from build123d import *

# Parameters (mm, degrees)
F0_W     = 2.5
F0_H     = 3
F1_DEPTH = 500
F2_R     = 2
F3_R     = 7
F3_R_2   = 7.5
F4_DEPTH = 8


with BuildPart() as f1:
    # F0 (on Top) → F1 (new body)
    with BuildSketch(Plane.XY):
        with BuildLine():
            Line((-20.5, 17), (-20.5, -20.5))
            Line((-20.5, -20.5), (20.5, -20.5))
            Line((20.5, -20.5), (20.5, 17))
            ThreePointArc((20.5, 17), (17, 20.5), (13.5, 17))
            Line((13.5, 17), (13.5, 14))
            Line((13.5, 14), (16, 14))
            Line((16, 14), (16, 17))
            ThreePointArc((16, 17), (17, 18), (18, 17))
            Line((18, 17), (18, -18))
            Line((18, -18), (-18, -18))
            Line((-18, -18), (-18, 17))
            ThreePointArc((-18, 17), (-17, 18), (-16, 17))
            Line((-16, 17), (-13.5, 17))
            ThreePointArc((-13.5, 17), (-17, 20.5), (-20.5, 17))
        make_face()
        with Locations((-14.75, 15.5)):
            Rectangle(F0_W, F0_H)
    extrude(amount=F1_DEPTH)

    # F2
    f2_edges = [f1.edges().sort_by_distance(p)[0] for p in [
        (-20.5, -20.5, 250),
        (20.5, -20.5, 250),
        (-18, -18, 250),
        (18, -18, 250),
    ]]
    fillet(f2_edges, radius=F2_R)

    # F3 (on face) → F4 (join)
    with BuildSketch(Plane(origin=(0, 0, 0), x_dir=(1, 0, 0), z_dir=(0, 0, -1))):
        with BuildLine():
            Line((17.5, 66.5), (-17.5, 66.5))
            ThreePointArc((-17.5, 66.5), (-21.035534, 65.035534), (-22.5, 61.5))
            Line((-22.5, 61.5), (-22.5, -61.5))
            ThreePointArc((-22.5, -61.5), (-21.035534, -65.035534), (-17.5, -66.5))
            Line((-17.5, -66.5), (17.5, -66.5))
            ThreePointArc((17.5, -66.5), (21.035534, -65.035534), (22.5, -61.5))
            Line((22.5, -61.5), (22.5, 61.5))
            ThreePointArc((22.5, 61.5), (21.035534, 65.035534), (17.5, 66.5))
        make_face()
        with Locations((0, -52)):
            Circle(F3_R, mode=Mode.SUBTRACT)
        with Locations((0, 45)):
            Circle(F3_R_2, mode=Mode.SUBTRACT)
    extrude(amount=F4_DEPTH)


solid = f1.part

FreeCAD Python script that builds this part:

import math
import FreeCAD as App
import Part
import Sketcher
from FreeCAD import Vector


def edges_at(feature, points):
    """Names of the edges that pass closest to the given points."""
    edges = feature.Shape.Edges
    near = lambda p: min(range(len(edges)), key=lambda i: edges[i].distToShape(Part.Vertex(*p))[0])
    return sorted({f"Edge{near(p) + 1}" for p in points})

doc = App.newDocument("Part")
body = doc.addObject("PartDesign::Body", "Body")

sketch1 = body.newObject("Sketcher::SketchObject", "Sketch")
sketch1.AttachmentSupport = (doc.getObject("XY_Plane"), [""])
sketch1.MapMode = "FlatFace"
sketch1.addGeometry(Part.LineSegment(Vector(-20.5, 17, 0), Vector(-20.5, -20.5, 0)), False)
sketch1.addGeometry(Part.LineSegment(Vector(-20.5, -20.5, 0), Vector(20.5, -20.5, 0)), False)
sketch1.addGeometry(Part.LineSegment(Vector(20.5, -20.5, 0), Vector(20.5, 17, 0)), False)
sketch1.addGeometry(Part.ArcOfCircle(Part.Circle(Vector(17, 17, 0), Vector(0, 0, 1), 3.5), math.radians(0), math.radians(180)), False)
sketch1.addGeometry(Part.LineSegment(Vector(13.5, 17, 0), Vector(13.5, 14, 0)), False)
sketch1.addGeometry(Part.LineSegment(Vector(13.5, 14, 0), Vector(16, 14, 0)), False)
sketch1.addGeometry(Part.LineSegment(Vector(16, 14, 0), Vector(16, 17, 0)), False)
sketch1.addGeometry(Part.ArcOfCircle(Part.Circle(Vector(17, 17, 0), Vector(0, 0, 1), 1), math.radians(0), math.radians(180)), False)
sketch1.addGeometry(Part.LineSegment(Vector(18, 17, 0), Vector(18, -18, 0)), False)
sketch1.addGeometry(Part.LineSegment(Vector(18, -18, 0), Vector(-18, -18, 0)), False)
sketch1.addGeometry(Part.LineSegment(Vector(-18, -18, 0), Vector(-18, 17, 0)), False)
sketch1.addGeometry(Part.ArcOfCircle(Part.Circle(Vector(-17, 17, 0), Vector(0, 0, 1), 1), math.radians(0), math.radians(180)), False)
sketch1.addGeometry(Part.LineSegment(Vector(-16, 17, 0), Vector(-16, 14, 0)), False)
sketch1.addGeometry(Part.LineSegment(Vector(-16, 14, 0), Vector(-13.5, 14, 0)), False)
sketch1.addGeometry(Part.LineSegment(Vector(-13.5, 14, 0), Vector(-13.5, 17, 0)), False)
sketch1.addGeometry(Part.ArcOfCircle(Part.Circle(Vector(-17, 17, 0), Vector(0, 0, 1), 3.5), math.radians(0), math.radians(180)), False)
sketch1.addConstraint(Sketcher.Constraint("Coincident", 0, 2, 1, 1))
sketch1.addConstraint(Sketcher.Constraint("Coincident", 1, 2, 2, 1))
sketch1.addConstraint(Sketcher.Constraint("Tangent", 2, 2, 3, 1))
sketch1.addConstraint(Sketcher.Constraint("Tangent", 3, 2, 4, 1))
sketch1.addConstraint(Sketcher.Constraint("Coincident", 4, 2, 5, 1))
sketch1.addConstraint(Sketcher.Constraint("Coincident", 5, 2, 6, 1))
sketch1.addConstraint(Sketcher.Constraint("Tangent", 6, 2, 7, 2))
sketch1.addConstraint(Sketcher.Constraint("Tangent", 7, 1, 8, 1))
sketch1.addConstraint(Sketcher.Constraint("Coincident", 8, 2, 9, 1))
sketch1.addConstraint(Sketcher.Constraint("Coincident", 9, 2, 10, 1))
sketch1.addConstraint(Sketcher.Constraint("Tangent", 10, 2, 11, 2))
sketch1.addConstraint(Sketcher.Constraint("Tangent", 11, 1, 12, 1))
sketch1.addConstraint(Sketcher.Constraint("Coincident", 12, 2, 13, 1))
sketch1.addConstraint(Sketcher.Constraint("Coincident", 13, 2, 14, 1))
sketch1.addConstraint(Sketcher.Constraint("Tangent", 14, 2, 15, 1))
sketch1.addConstraint(Sketcher.Constraint("Tangent", 15, 2, 0, 1))
sketch1.addConstraint(Sketcher.Constraint("Vertical", 0))
sketch1.addConstraint(Sketcher.Constraint("Horizontal", 1))
sketch1.addConstraint(Sketcher.Constraint("Vertical", 2))
sketch1.addConstraint(Sketcher.Constraint("Vertical", 4))
sketch1.addConstraint(Sketcher.Constraint("Horizontal", 5))
sketch1.addConstraint(Sketcher.Constraint("Vertical", 6))
sketch1.addConstraint(Sketcher.Constraint("Vertical", 8))
sketch1.addConstraint(Sketcher.Constraint("Horizontal", 9))
sketch1.addConstraint(Sketcher.Constraint("Vertical", 10))
sketch1.addConstraint(Sketcher.Constraint("Vertical", 12))
sketch1.addConstraint(Sketcher.Constraint("Horizontal", 13))
sketch1.addConstraint(Sketcher.Constraint("Vertical", 14))
sketch1.addConstraint(Sketcher.Constraint("Coincident", 7, 3, 3, 3))
sketch1.addConstraint(Sketcher.Constraint("Coincident", 15, 3, 11, 3))
sketch1.addConstraint(Sketcher.Constraint("Equal", 7, 11))
sketch1.addConstraint(Sketcher.Constraint("Equal", 3, 15))
sketch1.addConstraint(Sketcher.Constraint("Symmetric", 3, 3, 11, 3, -2))
sketch1.addConstraint(Sketcher.Constraint("Horizontal", 5, 2, 12, 2))
sketch1.addConstraint(Sketcher.Constraint("Radius", 7, 1.0))
sketch1.addConstraint(Sketcher.Constraint("Radius", 3, 3.5))
sketch1.addConstraint(Sketcher.Constraint("DistanceX", 1, 1, 1, 2, 41.0))
sketch1.addConstraint(Sketcher.Constraint("DistanceY", 4, 2, 4, 1, 3.0))
sketch1.addConstraint(Sketcher.Constraint("DistanceY", 8, 2, 8, 1, 35.0))
sketch1.addConstraint(Sketcher.Constraint("DistanceY", 0, 2, 0, 1, 37.5))
sketch1.addConstraint(Sketcher.Constraint("DistanceY", -1, 1, 3, 3, 17.0))
pad1 = body.newObject("PartDesign::Pad", "Pad")
pad1.Profile = sketch1
pad1.Length = 500
doc.recompute()

fillet = body.newObject("PartDesign::Fillet", "Fillet")
fillet.Base = (pad1, edges_at(pad1, [
    (-20.5, -20.5, 250),
    (20.5, -20.5, 250),
    (-18, -18, 250),
    (18, -18, 250),
]))
fillet.Radius = 2

sketch2 = body.newObject("Sketcher::SketchObject", "Sketch001")
sketch2.AttachmentSupport = (doc.getObject("XY_Plane"), [""])
sketch2.MapMode = "FlatFace"
sketch2.addGeometry(Part.LineSegment(Vector(17.5, -66.5, 0), Vector(-17.5, -66.5, 0)), False)
sketch2.addGeometry(Part.ArcOfCircle(Part.Circle(Vector(-17.5, -61.5, 0), Vector(0, 0, 1), 5), math.radians(179.999996), math.radians(270.000004)), False)
sketch2.addGeometry(Part.LineSegment(Vector(-22.5, -61.5, 0), Vector(-22.5, 61.5, 0)), False)
sketch2.addGeometry(Part.ArcOfCircle(Part.Circle(Vector(-17.5, 61.5, 0), Vector(0, 0, 1), 5), math.radians(89.999996), math.radians(180.000004)), False)
sketch2.addGeometry(Part.LineSegment(Vector(-17.5, 66.5, 0), Vector(17.5, 66.5, 0)), False)
sketch2.addGeometry(Part.ArcOfCircle(Part.Circle(Vector(17.5, 61.5, 0), Vector(0, 0, 1), 5), math.radians(-0.000004), math.radians(90.000004)), False)
sketch2.addGeometry(Part.LineSegment(Vector(22.5, 61.5, 0), Vector(22.5, -61.5, 0)), False)
sketch2.addGeometry(Part.ArcOfCircle(Part.Circle(Vector(17.5, -61.5, 0), Vector(0, 0, 1), 5), math.radians(-90.000004), math.radians(0.000004)), False)
sketch2.addGeometry(Part.Circle(Vector(0, 52, 0), Vector(0, 0, 1), 7), False)
sketch2.addGeometry(Part.Circle(Vector(0, -45, 0), Vector(0, 0, 1), 7.5), False)
sketch2.addConstraint(Sketcher.Constraint("Tangent", 0, 2, 1, 2))
sketch2.addConstraint(Sketcher.Constraint("Tangent", 1, 1, 2, 1))
sketch2.addConstraint(Sketcher.Constraint("Tangent", 2, 2, 3, 2))
sketch2.addConstraint(Sketcher.Constraint("Tangent", 3, 1, 4, 1))
sketch2.addConstraint(Sketcher.Constraint("Tangent", 4, 2, 5, 2))
sketch2.addConstraint(Sketcher.Constraint("Tangent", 5, 1, 6, 1))
sketch2.addConstraint(Sketcher.Constraint("Tangent", 6, 2, 7, 2))
sketch2.addConstraint(Sketcher.Constraint("Tangent", 7, 1, 0, 1))
sketch2.addConstraint(Sketcher.Constraint("Horizontal", 0))
sketch2.addConstraint(Sketcher.Constraint("Vertical", 2))
sketch2.addConstraint(Sketcher.Constraint("Horizontal", 4))
sketch2.addConstraint(Sketcher.Constraint("Vertical", 6))
sketch2.addConstraint(Sketcher.Constraint("Equal", 1, 3))
sketch2.addConstraint(Sketcher.Constraint("Equal", 3, 5))
sketch2.addConstraint(Sketcher.Constraint("Equal", 5, 7))
sketch2.addConstraint(Sketcher.Constraint("Symmetric", 1, 3, 5, 3, -1, 1))
sketch2.addConstraint(Sketcher.Constraint("PointOnObject", 8, 3, -2))
sketch2.addConstraint(Sketcher.Constraint("PointOnObject", 9, 3, -2))
sketch2.addConstraint(Sketcher.Constraint("Diameter", 8, 14.0))
sketch2.addConstraint(Sketcher.Constraint("Diameter", 9, 15.0))
sketch2.addConstraint(Sketcher.Constraint("Radius", 1, 5.0))
sketch2.addConstraint(Sketcher.Constraint("DistanceX", 0, 2, 0, 1, 35.0))
sketch2.addConstraint(Sketcher.Constraint("DistanceY", 2, 1, 2, 2, 123.0))
sketch2.addConstraint(Sketcher.Constraint("DistanceY", -1, 1, 8, 3, 52.0))
sketch2.addConstraint(Sketcher.Constraint("DistanceY", 9, 3, -1, 1, 45.0))
pad2 = body.newObject("PartDesign::Pad", "Pad001")
pad2.Profile = sketch2
pad2.Length = 8
pad2.Reversed = True

doc.recompute()
